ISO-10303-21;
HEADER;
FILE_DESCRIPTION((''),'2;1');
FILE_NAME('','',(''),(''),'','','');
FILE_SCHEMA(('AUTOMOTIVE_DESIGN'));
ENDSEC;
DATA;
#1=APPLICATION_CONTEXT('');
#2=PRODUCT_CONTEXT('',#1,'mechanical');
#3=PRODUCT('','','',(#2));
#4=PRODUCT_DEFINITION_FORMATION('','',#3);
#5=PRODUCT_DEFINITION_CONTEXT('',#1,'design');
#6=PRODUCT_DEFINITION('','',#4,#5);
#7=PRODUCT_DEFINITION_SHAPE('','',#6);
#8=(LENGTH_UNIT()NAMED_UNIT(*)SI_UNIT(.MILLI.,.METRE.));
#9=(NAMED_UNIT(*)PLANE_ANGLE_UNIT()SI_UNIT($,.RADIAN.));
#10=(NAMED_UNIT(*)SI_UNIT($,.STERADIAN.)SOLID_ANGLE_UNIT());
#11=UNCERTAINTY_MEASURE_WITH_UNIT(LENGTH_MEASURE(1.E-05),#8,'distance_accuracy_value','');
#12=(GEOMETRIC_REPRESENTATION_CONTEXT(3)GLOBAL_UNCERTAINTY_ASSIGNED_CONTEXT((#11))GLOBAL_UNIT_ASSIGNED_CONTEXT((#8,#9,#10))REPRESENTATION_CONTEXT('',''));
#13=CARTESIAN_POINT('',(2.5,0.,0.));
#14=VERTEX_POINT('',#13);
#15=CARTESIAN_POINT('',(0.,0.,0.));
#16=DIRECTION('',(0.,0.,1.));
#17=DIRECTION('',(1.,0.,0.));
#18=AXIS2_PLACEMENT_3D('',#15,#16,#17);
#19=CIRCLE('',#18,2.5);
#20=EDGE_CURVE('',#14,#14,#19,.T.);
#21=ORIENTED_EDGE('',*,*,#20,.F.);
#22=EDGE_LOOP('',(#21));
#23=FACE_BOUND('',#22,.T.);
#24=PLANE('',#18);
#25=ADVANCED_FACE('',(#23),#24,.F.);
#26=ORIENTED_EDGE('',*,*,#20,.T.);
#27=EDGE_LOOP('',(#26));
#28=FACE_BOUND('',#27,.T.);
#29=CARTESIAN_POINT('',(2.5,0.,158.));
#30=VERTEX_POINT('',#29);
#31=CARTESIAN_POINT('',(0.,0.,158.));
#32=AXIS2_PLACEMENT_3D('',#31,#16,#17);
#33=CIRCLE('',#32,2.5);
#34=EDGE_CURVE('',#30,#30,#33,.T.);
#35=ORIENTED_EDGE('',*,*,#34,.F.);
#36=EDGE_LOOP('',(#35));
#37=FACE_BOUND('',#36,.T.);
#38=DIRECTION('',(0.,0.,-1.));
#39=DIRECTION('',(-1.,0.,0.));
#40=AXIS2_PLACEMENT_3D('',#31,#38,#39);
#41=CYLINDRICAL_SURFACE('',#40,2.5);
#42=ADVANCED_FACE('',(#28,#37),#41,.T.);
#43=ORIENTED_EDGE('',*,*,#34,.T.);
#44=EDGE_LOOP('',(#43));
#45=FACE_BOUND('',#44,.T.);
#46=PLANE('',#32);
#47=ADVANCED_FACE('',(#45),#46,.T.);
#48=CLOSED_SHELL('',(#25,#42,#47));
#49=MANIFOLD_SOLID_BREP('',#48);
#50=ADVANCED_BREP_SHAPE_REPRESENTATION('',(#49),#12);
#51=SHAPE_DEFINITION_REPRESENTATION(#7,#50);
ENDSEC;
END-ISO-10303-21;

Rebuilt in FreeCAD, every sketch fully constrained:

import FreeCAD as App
import Part
import Sketcher

doc = App.newDocument("Part")
body = doc.addObject("PartDesign::Body", "Body")

# Sketch on XY plane
sketch1 = doc.addObject("Sketcher::SketchObject", "Sketch")
body.addObject(sketch1)
sketch1.AttachmentSupport = (doc.XY_Plane, [""])
sketch1.MapMode = "FlatFace"
sketch1.addGeometry(Part.Circle(App.Vector(0, 0, 0), App.Vector(0, 0, 1), 2.5), False)
sketch1.addConstraint([
    Sketcher.Constraint("Coincident", 0, 3, -1, 1),
    Sketcher.Constraint("Diameter", 0, 5.0),
])
pad1 = doc.addObject("PartDesign::Pad", "Pad")
body.addObject(pad1)
pad1.Profile = sketch1
pad1.Length = 158

doc.recompute()
